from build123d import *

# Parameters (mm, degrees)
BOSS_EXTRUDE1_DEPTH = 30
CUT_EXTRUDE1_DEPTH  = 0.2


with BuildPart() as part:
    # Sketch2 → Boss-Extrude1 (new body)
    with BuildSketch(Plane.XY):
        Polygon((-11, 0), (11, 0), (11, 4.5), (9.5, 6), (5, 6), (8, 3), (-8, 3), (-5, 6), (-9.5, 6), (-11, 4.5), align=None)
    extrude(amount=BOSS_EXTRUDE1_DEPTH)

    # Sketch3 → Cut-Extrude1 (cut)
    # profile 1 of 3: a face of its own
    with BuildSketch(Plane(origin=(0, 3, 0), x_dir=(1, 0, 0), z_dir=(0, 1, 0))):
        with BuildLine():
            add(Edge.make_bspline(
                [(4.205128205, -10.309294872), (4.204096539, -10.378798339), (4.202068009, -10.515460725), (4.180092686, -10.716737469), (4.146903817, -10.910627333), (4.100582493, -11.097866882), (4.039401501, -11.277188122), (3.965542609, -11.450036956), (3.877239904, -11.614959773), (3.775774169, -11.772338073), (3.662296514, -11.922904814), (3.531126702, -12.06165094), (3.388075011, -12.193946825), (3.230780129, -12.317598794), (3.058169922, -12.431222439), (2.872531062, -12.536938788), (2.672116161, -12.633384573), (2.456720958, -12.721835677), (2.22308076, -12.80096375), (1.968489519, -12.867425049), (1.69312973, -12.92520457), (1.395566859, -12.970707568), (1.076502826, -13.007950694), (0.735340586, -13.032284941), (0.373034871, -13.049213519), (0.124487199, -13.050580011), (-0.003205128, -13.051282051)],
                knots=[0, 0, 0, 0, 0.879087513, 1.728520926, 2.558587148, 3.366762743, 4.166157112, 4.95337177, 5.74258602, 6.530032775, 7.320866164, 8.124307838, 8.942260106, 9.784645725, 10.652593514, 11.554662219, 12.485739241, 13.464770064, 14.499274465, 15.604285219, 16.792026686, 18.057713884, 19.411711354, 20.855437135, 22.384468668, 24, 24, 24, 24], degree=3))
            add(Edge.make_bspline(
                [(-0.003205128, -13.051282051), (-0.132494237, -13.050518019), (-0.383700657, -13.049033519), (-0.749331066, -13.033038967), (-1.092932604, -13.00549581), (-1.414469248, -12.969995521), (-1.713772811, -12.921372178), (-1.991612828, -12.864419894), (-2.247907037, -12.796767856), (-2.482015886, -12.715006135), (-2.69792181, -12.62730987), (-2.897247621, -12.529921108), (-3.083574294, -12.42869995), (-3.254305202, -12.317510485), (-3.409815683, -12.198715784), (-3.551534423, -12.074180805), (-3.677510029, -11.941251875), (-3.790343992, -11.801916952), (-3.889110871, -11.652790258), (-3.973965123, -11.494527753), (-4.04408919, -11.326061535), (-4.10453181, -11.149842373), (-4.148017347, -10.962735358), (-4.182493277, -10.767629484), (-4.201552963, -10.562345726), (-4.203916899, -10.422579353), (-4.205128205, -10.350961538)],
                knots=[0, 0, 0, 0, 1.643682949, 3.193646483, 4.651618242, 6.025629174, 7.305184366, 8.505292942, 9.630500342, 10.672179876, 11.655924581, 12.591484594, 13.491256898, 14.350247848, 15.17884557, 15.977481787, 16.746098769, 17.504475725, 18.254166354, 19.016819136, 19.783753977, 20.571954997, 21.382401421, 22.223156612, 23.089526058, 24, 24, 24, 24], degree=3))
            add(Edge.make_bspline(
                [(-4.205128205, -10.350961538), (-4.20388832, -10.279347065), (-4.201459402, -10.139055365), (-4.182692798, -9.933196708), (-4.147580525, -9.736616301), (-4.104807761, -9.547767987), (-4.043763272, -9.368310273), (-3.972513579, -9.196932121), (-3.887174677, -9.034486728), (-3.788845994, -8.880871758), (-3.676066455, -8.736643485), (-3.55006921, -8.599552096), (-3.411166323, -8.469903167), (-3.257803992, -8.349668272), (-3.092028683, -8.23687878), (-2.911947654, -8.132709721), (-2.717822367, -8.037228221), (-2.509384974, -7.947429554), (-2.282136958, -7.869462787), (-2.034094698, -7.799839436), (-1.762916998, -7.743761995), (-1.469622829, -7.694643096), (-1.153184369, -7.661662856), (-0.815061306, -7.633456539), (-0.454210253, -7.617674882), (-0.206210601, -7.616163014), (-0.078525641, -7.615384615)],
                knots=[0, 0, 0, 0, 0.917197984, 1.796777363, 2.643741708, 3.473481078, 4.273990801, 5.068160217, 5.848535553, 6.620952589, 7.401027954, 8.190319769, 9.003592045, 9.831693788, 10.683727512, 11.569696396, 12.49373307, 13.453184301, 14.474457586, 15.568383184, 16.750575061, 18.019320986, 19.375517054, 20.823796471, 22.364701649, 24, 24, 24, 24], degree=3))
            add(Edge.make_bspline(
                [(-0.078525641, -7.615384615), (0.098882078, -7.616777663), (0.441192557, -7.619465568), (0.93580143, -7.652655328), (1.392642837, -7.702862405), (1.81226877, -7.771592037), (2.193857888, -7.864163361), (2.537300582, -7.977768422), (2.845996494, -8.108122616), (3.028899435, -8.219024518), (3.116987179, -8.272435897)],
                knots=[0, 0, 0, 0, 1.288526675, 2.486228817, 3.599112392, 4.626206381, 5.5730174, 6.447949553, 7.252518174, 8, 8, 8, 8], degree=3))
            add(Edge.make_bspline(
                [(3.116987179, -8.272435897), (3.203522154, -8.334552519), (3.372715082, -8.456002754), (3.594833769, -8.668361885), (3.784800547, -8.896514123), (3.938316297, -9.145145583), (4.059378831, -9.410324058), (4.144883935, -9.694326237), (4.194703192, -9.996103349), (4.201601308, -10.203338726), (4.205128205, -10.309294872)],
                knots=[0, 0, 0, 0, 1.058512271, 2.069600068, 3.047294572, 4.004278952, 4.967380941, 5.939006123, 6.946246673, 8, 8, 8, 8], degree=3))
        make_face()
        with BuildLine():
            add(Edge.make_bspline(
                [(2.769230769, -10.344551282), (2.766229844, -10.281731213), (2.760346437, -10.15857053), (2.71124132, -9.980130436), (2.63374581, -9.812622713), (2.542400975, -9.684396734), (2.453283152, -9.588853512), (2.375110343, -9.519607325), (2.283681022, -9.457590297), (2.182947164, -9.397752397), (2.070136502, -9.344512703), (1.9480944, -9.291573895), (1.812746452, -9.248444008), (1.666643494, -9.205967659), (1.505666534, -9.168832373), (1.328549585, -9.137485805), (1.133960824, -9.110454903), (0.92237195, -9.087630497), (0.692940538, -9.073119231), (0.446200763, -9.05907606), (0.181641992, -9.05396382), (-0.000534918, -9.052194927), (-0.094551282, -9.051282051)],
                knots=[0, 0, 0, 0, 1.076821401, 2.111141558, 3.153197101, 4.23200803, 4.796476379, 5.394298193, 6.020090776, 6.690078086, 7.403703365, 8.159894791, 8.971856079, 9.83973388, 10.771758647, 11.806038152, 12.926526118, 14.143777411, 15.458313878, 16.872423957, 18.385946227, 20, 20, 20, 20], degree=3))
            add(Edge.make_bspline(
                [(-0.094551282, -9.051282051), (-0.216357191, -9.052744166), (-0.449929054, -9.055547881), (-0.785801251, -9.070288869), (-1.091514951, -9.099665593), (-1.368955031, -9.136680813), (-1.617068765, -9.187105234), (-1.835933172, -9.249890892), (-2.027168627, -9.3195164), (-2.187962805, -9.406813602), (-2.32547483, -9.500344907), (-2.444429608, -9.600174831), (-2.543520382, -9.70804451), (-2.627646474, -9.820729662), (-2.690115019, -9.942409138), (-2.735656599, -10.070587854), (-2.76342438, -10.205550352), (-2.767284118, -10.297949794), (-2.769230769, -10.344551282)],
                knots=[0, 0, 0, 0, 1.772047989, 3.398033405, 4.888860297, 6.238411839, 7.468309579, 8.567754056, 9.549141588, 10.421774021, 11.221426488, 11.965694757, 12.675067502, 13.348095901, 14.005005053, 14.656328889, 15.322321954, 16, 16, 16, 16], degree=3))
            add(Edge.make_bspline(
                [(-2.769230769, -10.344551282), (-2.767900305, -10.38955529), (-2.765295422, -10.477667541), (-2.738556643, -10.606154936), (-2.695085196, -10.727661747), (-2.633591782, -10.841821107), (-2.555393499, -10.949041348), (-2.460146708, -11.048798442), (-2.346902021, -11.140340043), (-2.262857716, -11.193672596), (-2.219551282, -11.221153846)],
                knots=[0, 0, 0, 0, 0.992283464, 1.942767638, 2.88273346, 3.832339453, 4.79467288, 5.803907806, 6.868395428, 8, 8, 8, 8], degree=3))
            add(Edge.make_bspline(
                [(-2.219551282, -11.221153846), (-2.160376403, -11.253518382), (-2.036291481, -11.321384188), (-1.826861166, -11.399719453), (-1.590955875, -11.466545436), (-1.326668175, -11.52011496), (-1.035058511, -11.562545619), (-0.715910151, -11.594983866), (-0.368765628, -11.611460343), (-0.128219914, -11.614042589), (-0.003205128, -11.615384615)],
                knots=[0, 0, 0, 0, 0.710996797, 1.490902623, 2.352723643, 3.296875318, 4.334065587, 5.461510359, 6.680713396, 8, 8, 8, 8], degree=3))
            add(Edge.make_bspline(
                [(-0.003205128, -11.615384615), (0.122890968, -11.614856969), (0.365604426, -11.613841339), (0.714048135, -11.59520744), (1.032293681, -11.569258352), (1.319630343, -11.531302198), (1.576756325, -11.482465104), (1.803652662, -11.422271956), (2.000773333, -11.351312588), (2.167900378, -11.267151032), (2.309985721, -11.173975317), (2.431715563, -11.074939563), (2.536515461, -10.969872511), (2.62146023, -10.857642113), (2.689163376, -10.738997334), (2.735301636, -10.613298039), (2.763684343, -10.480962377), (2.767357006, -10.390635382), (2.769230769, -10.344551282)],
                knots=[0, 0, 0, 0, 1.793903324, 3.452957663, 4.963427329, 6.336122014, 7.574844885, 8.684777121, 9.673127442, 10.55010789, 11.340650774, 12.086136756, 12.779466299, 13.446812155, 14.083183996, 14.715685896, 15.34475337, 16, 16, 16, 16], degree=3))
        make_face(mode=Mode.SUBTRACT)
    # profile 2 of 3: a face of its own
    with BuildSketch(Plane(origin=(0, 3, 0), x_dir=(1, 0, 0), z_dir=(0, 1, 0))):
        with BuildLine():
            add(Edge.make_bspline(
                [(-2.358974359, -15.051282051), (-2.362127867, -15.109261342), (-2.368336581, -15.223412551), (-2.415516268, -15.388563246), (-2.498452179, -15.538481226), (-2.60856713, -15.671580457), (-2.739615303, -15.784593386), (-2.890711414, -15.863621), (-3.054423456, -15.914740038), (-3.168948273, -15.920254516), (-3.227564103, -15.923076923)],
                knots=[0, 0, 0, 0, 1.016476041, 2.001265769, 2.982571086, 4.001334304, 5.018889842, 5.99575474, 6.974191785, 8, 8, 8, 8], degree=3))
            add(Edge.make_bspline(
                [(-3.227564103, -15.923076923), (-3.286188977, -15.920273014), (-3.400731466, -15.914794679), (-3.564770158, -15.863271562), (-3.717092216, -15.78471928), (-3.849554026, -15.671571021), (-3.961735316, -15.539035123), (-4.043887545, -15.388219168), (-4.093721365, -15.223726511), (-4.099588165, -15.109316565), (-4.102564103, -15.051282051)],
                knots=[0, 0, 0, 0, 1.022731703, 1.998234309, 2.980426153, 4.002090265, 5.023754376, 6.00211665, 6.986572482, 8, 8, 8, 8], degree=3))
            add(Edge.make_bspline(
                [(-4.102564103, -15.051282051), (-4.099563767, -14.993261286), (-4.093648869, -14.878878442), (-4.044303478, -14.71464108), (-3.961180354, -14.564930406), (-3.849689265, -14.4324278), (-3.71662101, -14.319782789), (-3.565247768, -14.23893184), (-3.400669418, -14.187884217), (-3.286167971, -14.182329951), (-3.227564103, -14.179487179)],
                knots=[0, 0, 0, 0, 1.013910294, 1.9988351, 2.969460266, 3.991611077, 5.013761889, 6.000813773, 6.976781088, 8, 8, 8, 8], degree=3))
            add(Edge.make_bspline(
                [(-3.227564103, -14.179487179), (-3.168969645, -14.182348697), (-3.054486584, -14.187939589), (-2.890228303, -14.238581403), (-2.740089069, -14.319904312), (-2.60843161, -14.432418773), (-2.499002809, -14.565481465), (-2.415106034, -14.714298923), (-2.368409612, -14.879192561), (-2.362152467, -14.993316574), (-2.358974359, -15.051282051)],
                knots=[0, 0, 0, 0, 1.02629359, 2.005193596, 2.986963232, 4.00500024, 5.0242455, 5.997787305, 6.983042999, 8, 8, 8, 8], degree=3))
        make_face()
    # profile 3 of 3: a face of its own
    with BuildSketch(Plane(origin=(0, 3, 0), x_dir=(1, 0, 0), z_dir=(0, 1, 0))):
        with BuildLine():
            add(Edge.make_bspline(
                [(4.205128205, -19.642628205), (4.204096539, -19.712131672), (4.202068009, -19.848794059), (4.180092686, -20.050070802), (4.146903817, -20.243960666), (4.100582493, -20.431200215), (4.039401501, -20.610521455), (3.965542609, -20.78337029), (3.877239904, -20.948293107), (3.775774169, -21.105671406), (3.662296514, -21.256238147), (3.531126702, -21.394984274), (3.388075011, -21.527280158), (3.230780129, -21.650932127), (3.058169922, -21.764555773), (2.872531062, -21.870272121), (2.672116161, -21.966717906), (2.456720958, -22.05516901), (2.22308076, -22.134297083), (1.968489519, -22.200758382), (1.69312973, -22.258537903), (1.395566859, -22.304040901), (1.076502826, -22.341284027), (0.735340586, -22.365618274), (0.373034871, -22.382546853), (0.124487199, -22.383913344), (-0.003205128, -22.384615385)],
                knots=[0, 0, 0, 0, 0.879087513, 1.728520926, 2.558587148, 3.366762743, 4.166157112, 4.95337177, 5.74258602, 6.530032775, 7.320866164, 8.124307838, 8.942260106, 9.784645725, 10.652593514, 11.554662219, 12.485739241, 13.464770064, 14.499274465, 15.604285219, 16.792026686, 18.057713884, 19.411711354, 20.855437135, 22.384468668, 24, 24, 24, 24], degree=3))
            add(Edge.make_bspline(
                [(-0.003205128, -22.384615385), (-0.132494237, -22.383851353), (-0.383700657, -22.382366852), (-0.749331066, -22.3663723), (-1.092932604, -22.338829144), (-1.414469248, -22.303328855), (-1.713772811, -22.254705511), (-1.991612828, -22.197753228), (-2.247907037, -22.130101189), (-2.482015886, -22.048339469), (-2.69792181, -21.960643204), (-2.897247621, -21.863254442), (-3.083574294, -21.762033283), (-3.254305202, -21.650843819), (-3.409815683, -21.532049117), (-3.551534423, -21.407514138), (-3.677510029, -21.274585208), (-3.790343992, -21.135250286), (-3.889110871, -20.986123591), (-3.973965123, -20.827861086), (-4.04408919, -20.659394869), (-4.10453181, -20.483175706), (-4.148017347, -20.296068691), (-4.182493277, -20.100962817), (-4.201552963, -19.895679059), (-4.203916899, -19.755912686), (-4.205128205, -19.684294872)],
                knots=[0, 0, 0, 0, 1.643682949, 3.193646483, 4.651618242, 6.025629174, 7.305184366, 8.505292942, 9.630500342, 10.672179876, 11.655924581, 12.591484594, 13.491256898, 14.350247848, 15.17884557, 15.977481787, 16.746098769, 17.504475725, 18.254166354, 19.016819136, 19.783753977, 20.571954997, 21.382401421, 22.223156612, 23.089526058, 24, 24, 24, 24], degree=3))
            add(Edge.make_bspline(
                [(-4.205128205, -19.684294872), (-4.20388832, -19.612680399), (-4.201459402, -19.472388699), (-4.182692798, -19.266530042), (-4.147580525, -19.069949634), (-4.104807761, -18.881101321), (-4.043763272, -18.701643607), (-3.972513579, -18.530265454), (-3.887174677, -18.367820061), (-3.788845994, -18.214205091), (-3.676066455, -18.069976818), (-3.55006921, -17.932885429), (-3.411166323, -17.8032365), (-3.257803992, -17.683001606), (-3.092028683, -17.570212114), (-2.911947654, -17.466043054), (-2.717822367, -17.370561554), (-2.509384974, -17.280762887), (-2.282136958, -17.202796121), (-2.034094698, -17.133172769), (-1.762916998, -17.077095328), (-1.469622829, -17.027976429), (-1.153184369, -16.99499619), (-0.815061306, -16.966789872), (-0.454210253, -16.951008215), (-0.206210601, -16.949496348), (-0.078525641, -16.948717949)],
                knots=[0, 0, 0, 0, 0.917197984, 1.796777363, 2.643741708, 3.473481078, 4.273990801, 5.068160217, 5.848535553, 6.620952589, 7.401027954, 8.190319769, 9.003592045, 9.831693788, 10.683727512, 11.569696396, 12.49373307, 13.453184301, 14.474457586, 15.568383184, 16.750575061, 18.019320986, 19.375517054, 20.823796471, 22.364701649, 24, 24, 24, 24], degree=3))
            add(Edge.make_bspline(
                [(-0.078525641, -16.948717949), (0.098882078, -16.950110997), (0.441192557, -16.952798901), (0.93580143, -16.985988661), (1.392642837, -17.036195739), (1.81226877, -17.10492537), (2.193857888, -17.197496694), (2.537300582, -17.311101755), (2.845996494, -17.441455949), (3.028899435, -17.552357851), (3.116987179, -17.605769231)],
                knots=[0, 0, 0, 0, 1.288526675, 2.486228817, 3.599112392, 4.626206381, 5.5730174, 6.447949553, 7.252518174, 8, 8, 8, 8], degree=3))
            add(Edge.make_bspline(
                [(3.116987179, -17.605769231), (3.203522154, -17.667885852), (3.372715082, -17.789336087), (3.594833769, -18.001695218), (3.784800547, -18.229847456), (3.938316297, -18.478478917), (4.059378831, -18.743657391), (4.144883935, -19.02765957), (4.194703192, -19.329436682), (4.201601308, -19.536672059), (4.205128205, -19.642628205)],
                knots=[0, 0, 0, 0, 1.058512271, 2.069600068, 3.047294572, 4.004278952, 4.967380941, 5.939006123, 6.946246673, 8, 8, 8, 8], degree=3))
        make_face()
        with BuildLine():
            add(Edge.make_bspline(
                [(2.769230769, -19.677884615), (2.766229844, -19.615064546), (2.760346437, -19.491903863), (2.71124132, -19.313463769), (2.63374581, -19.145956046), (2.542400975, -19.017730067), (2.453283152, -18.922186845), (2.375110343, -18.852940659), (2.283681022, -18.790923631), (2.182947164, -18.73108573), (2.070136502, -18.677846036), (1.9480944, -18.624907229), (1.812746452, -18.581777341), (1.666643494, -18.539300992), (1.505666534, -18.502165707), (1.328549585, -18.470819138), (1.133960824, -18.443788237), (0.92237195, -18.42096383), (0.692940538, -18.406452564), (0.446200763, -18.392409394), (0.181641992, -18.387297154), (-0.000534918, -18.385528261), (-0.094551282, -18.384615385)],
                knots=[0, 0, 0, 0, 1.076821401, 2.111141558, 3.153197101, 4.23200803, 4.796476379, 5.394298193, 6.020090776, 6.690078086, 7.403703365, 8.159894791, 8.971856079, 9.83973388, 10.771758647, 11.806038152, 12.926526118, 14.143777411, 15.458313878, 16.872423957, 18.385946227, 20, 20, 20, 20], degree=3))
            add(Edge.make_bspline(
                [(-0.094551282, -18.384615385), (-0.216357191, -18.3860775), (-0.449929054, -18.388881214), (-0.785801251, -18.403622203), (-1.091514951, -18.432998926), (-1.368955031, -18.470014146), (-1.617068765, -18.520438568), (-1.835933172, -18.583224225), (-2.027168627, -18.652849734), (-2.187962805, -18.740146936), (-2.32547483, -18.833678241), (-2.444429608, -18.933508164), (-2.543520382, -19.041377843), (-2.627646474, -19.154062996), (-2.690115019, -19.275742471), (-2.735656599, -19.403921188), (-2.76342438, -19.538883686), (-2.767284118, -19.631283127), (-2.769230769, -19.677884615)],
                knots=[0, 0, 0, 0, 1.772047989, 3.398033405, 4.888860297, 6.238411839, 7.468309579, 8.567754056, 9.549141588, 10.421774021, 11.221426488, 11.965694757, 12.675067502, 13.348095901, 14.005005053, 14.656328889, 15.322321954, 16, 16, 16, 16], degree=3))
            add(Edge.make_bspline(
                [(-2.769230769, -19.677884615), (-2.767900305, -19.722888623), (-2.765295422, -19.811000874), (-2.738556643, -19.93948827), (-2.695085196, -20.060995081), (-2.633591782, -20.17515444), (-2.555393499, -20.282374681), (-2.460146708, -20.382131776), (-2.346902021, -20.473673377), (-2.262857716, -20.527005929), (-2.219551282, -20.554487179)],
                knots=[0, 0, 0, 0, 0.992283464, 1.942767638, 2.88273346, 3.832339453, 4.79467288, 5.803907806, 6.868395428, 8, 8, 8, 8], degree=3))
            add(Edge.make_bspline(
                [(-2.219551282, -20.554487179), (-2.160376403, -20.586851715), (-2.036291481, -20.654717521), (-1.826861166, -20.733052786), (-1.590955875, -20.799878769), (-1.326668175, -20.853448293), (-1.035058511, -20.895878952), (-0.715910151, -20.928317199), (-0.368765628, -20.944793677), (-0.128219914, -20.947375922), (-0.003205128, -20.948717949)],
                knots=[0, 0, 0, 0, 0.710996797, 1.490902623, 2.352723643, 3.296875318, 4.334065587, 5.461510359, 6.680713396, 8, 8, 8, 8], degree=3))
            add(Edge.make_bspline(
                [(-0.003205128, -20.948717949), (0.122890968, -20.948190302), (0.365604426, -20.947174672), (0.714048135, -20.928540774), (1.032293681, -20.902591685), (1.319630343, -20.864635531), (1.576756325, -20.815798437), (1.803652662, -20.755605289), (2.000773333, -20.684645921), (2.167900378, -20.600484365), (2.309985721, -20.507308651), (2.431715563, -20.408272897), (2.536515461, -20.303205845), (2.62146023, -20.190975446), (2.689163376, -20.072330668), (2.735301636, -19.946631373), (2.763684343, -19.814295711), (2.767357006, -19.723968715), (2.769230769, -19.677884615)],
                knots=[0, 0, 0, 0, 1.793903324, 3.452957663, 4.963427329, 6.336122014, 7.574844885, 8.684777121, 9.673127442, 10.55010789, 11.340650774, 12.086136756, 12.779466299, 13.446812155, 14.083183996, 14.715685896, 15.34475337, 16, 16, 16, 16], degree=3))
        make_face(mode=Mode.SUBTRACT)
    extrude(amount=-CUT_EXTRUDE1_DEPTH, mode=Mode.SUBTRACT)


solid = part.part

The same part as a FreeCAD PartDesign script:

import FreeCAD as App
import Part
import Sketcher


def add_polygon(sketch, points):
    """Adds a closed chain of lines whose ends are joined by coincident constraints."""
    first, n = sketch.GeometryCount, len(points)
    for a, b in zip(points, points[1:] + points[:1]):
        sketch.addGeometry(Part.LineSegment(App.Vector(*a, 0), App.Vector(*b, 0)), False)
    for i in range(n):
        sketch.addConstraint(Sketcher.Constraint("Coincident", first + i, 2, first + (i + 1) % n, 1))

doc = App.newDocument("Part")
body = doc.addObject("PartDesign::Body", "Body")

# Sketch on XY plane
sketch1 = doc.addObject("Sketcher::SketchObject", "Sketch")
body.addObject(sketch1)
sketch1.AttachmentSupport = (doc.XY_Plane, [""])
sketch1.MapMode = "FlatFace"
add_polygon(sketch1, [(-11, 0), (11, 0), (11, 4.5), (9.5, 6), (5, 6), (8, 3), (-8, 3), (-5, 6), (-9.5, 6), (-11, 4.5)])  # lines 0-9
sketch1.addConstraint(Sketcher.Constraint("Horizontal", 0))
sketch1.addConstraint(Sketcher.Constraint("Vertical", 1))
sketch1.addConstraint(Sketcher.Constraint("Horizontal", 3))
sketch1.addConstraint(Sketcher.Constraint("Horizontal", 5))
sketch1.addConstraint(Sketcher.Constraint("Horizontal", 7))
sketch1.addConstraint(Sketcher.Constraint("Vertical", 9))
sketch1.addConstraint(Sketcher.Constraint("Symmetric", 0, 2, 9, 2, -1, 1))
sketch1.addConstraint(Sketcher.Constraint("Symmetric", 3, 2, 6, 2, -2))
sketch1.addConstraint(Sketcher.Constraint("Parallel", 2, 4))
sketch1.addConstraint(Sketcher.Constraint("Perpendicular", 4, 6))
sketch1.addConstraint(Sketcher.Constraint("Parallel", 6, 8))
sketch1.addConstraint(Sketcher.Constraint("Horizontal", 1, 2, 8, 2))
sketch1.addConstraint(Sketcher.Constraint("Equal", 3, 7))
sketch1.addConstraint(Sketcher.Constraint("Equal", 7, 1))
sketch1.addConstraint(Sketcher.Constraint("DistanceX", 0, 1, 0, 2, 22.0))
sketch1.addConstraint(Sketcher.Constraint("DistanceX", 5, 2, 5, 1, 16.0))
sketch1.addConstraint(Sketcher.Constraint("DistanceX", 3, 2, 3, 1, 4.5))
sketch1.addConstraint(Sketcher.Constraint("DistanceY", -1, 1, 2, 2, 6.0))
pad1 = doc.addObject("PartDesign::Pad", "Pad")
body.addObject(pad1)
pad1.Profile = sketch1
pad1.Length = 30

# Sketch on XZ plane
sketch2 = doc.addObject("Sketcher::SketchObject", "Sketch001")
body.addObject(sketch2)
sketch2.AttachmentSupport = (doc.XZ_Plane, [""])
sketch2.MapMode = "FlatFace"
sketch2.AttachmentOffset = App.Placement(App.Vector(0, 0, -3), App.Rotation())
sketch2.addGeometry(Part.BSplineCurve([App.Vector(4.205128, 10.309295, 0), App.Vector(4.204097, 10.378798, 0), App.Vector(4.202068, 10.515461, 0), App.Vector(4.180093, 10.716737, 0), App.Vector(4.146904, 10.910627, 0), App.Vector(4.100582, 11.097867, 0), App.Vector(4.039402, 11.277188, 0), App.Vector(3.965543, 11.450037, 0), App.Vector(3.87724, 11.61496, 0), App.Vector(3.775774, 11.772338, 0), App.Vector(3.662297, 11.922905, 0), App.Vector(3.531127, 12.061651, 0), App.Vector(3.388075, 12.193947, 0), App.Vector(3.23078, 12.317599, 0), App.Vector(3.05817, 12.431222, 0), App.Vector(2.872531, 12.536939, 0), App.Vector(2.672116, 12.633385, 0), App.Vector(2.456721, 12.721836, 0), App.Vector(2.223081, 12.800964, 0), App.Vector(1.96849, 12.867425, 0), App.Vector(1.69313, 12.925205, 0), App.Vector(1.395567, 12.970708, 0), App.Vector(1.076503, 13.007951, 0), App.Vector(0.735341, 13.032285, 0), App.Vector(0.373035, 13.049214, 0), App.Vector(0.124487, 13.05058, 0), App.Vector(-0.003205, 13.051282, 0)], [4, 1, 1, 1, 1, 1, 1, 1, 1, 1, 1, 1, 1, 1, 1, 1, 1, 1, 1, 1, 1, 1, 1, 1, 4], [0, 0.879087513, 1.728520926, 2.558587148, 3.366762743, 4.166157112, 4.95337177, 5.74258602, 6.530032775, 7.320866164, 8.124307838, 8.942260106, 9.784645725, 10.652593514, 11.554662219, 12.485739241, 13.464770064, 14.499274465, 15.604285219, 16.792026686, 18.057713884, 19.411711354, 20.855437135, 22.384468668, 24], False, 3, [1, 1, 1, 1, 1, 1, 1, 1, 1, 1, 1, 1, 1, 1, 1, 1, 1, 1, 1, 1, 1, 1, 1, 1, 1, 1, 1], False), False)
sketch2.addGeometry(Part.BSplineCurve([App.Vector(3.116987, 8.272436, 0), App.Vector(3.203522, 8.334553, 0), App.Vector(3.372715, 8.456003, 0), App.Vector(3.594834, 8.668362, 0), App.Vector(3.784801, 8.896514, 0), App.Vector(3.938316, 9.145146, 0), App.Vector(4.059379, 9.410324, 0), App.Vector(4.144884, 9.694326, 0), App.Vector(4.194703, 9.996103, 0), App.Vector(4.201601, 10.203339, 0), App.Vector(4.205128, 10.309295, 0)], [4, 1, 1, 1, 1, 1, 1, 1, 4], [0, 1.058512271, 2.069600068, 3.047294572, 4.004278952, 4.967380941, 5.939006123, 6.946246673, 8], False, 3, [1, 1, 1, 1, 1, 1, 1, 1, 1, 1, 1], False), False)
sketch2.addGeometry(Part.BSplineCurve([App.Vector(-0.078526, 7.615385, 0), App.Vector(0.098882, 7.616778, 0), App.Vector(0.441193, 7.619466, 0), App.Vector(0.935801, 7.652655, 0), App.Vector(1.392643, 7.702862, 0), App.Vector(1.812269, 7.771592, 0), App.Vector(2.193858, 7.864163, 0), App.Vector(2.537301, 7.977768, 0), App.Vector(2.845996, 8.108123, 0), App.Vector(3.028899, 8.219025, 0), App.Vector(3.116987, 8.272436, 0)], [4, 1, 1, 1, 1, 1, 1, 1, 4], [0, 1.288526675, 2.486228817, 3.599112392, 4.626206381, 5.5730174, 6.447949553, 7.252518174, 8], False, 3, [1, 1, 1, 1, 1, 1, 1, 1, 1, 1, 1], False), False)
sketch2.addGeometry(Part.BSplineCurve([App.Vector(-4.205128, 10.350962, 0), App.Vector(-4.203888, 10.279347, 0), App.Vector(-4.201459, 10.139055, 0), App.Vector(-4.182693, 9.933197, 0), App.Vector(-4.147581, 9.736616, 0), App.Vector(-4.104808, 9.547768, 0), App.Vector(-4.043763, 9.36831, 0), App.Vector(-3.972514, 9.196932, 0), App.Vector(-3.887175, 9.034487, 0), App.Vector(-3.788846, 8.880872, 0), App.Vector(-3.676066, 8.736643, 0), App.Vector(-3.550069, 8.599552, 0), App.Vector(-3.411166, 8.469903, 0), App.Vector(-3.257804, 8.349668, 0), App.Vector(-3.092029, 8.236879, 0), App.Vector(-2.911948, 8.13271, 0), App.Vector(-2.717822, 8.037228, 0), App.Vector(-2.509385, 7.94743, 0), App.Vector(-2.282137, 7.869463, 0), App.Vector(-2.034095, 7.799839, 0), App.Vector(-1.762917, 7.743762, 0), App.Vector(-1.469623, 7.694643, 0), App.Vector(-1.153184, 7.661663, 0), App.Vector(-0.815061, 7.633457, 0), App.Vector(-0.45421, 7.617675, 0), App.Vector(-0.206211, 7.616163, 0), App.Vector(-0.078526, 7.615385, 0)], [4, 1, 1, 1, 1, 1, 1, 1, 1, 1, 1, 1, 1, 1, 1, 1, 1, 1, 1, 1, 1, 1, 1, 1, 4], [0, 0.917197984, 1.796777363, 2.643741708, 3.473481078, 4.273990801, 5.068160217, 5.848535553, 6.620952589, 7.401027954, 8.190319769, 9.003592045, 9.831693788, 10.683727512, 11.569696396, 12.49373307, 13.453184301, 14.474457586, 15.568383184, 16.750575061, 18.019320986, 19.375517054, 20.823796471, 22.364701649, 24], False, 3, [1, 1, 1, 1, 1, 1, 1, 1, 1, 1, 1, 1, 1, 1, 1, 1, 1, 1, 1, 1, 1, 1, 1, 1, 1, 1, 1], False), False)
sketch2.addGeometry(Part.BSplineCurve([App.Vector(-0.003205, 13.051282, 0), App.Vector(-0.132494, 13.050518, 0), App.Vector(-0.383701, 13.049034, 0), App.Vector(-0.749331, 13.033039, 0), App.Vector(-1.092933, 13.005496, 0), App.Vector(-1.414469, 12.969996, 0), App.Vector(-1.713773, 12.921372, 0), App.Vector(-1.991613, 12.86442, 0), App.Vector(-2.247907, 12.796768, 0), App.Vector(-2.482016, 12.715006, 0), App.Vector(-2.697922, 12.62731, 0), App.Vector(-2.897248, 12.529921, 0), App.Vector(-3.083574, 12.4287, 0), App.Vector(-3.254305, 12.31751, 0), App.Vector(-3.409816, 12.198716, 0), App.Vector(-3.551534, 12.074181, 0), App.Vector(-3.67751, 11.941252, 0), App.Vector(-3.790344, 11.801917, 0), App.Vector(-3.889111, 11.65279, 0), App.Vector(-3.973965, 11.494528, 0), App.Vector(-4.044089, 11.326062, 0), App.Vector(-4.104532, 11.149842, 0), App.Vector(-4.148017, 10.962735, 0), App.Vector(-4.182493, 10.767629, 0), App.Vector(-4.201553, 10.562346, 0), App.Vector(-4.203917, 10.422579, 0), App.Vector(-4.205128, 10.350962, 0)], [4, 1, 1, 1, 1, 1, 1, 1, 1, 1, 1, 1, 1, 1, 1, 1, 1, 1, 1, 1, 1, 1, 1, 1, 4], [0, 1.643682949, 3.193646483, 4.651618242, 6.025629174, 7.305184366, 8.505292942, 9.630500342, 10.672179876, 11.655924581, 12.591484594, 13.491256898, 14.350247848, 15.17884557, 15.977481787, 16.746098769, 17.504475725, 18.254166354, 19.016819136, 19.783753977, 20.571954997, 21.382401421, 22.223156612, 23.089526058, 24], False, 3, [1, 1, 1, 1, 1, 1, 1, 1, 1, 1, 1, 1, 1, 1, 1, 1, 1, 1, 1, 1, 1, 1, 1, 1, 1, 1, 1], False), False)
sketch2.addGeometry(Part.BSplineCurve([App.Vector(-0.003205, 11.615385, 0), App.Vector(0.122891, 11.614857, 0), App.Vector(0.365604, 11.613841, 0), App.Vector(0.714048, 11.595207, 0), App.Vector(1.032294, 11.569258, 0), App.Vector(1.31963, 11.531302, 0), App.Vector(1.576756, 11.482465, 0), App.Vector(1.803653, 11.422272, 0), App.Vector(2.000773, 11.351313, 0), App.Vector(2.1679, 11.267151, 0), App.Vector(2.309986, 11.173975, 0), App.Vector(2.431716, 11.07494, 0), App.Vector(2.536515, 10.969873, 0), App.Vector(2.62146, 10.857642, 0), App.Vector(2.689163, 10.738997, 0), App.Vector(2.735302, 10.613298, 0), App.Vector(2.763684, 10.480962, 0), App.Vector(2.767357, 10.390635, 0), App.Vector(2.769231, 10.344551, 0)], [4, 1, 1, 1, 1, 1, 1, 1, 1, 1, 1, 1, 1, 1, 1, 1, 4], [0, 1.793903324, 3.452957663, 4.963427329, 6.336122014, 7.574844885, 8.684777121, 9.673127442, 10.55010789, 11.340650774, 12.086136756, 12.779466299, 13.446812155, 14.083183996, 14.715685896, 15.34475337, 16], False, 3, [1, 1, 1, 1, 1, 1, 1, 1, 1, 1, 1, 1, 1, 1, 1, 1, 1, 1, 1], False), False)
sketch2.addGeometry(Part.BSplineCurve([App.Vector(-2.219551, 11.221154, 0), App.Vector(-2.160376, 11.253518, 0), App.Vector(-2.036291, 11.321384, 0), App.Vector(-1.826861, 11.399719, 0), App.Vector(-1.590956, 11.466545, 0), App.Vector(-1.326668, 11.520115, 0), App.Vector(-1.035059, 11.562546, 0), App.Vector(-0.71591, 11.594984, 0), App.Vector(-0.368766, 11.61146, 0), App.Vector(-0.12822, 11.614043, 0), App.Vector(-0.003205, 11.615385, 0)], [4, 1, 1, 1, 1, 1, 1, 1, 4], [0, 0.710996797, 1.490902623, 2.352723643, 3.296875318, 4.334065587, 5.461510359, 6.680713396, 8], False, 3, [1, 1, 1, 1, 1, 1, 1, 1, 1, 1, 1], False), False)
sketch2.addGeometry(Part.BSplineCurve([App.Vector(-2.769231, 10.344551, 0), App.Vector(-2.7679, 10.389555, 0), App.Vector(-2.765295, 10.477668, 0), App.Vector(-2.738557, 10.606155, 0), App.Vector(-2.695085, 10.727662, 0), App.Vector(-2.633592, 10.841821, 0), App.Vector(-2.555393, 10.949041, 0), App.Vector(-2.460147, 11.048798, 0), App.Vector(-2.346902, 11.14034, 0), App.Vector(-2.262858, 11.193673, 0), App.Vector(-2.219551, 11.221154, 0)], [4, 1, 1, 1, 1, 1, 1, 1, 4], [0, 0.992283464, 1.942767638, 2.88273346, 3.832339453, 4.79467288, 5.803907806, 6.868395428, 8], False, 3, [1, 1, 1, 1, 1, 1, 1, 1, 1, 1, 1], False), False)
sketch2.addGeometry(Part.BSplineCurve([App.Vector(-0.094551, 9.051282, 0), App.Vector(-0.216357, 9.052744, 0), App.Vector(-0.449929, 9.055548, 0), App.Vector(-0.785801, 9.070289, 0), App.Vector(-1.091515, 9.099666, 0), App.Vector(-1.368955, 9.136681, 0), App.Vector(-1.617069, 9.187105, 0), App.Vector(-1.835933, 9.249891, 0), App.Vector(-2.027169, 9.319516, 0), App.Vector(-2.187963, 9.406814, 0), App.Vector(-2.325475, 9.500345, 0), App.Vector(-2.44443, 9.600175, 0), App.Vector(-2.54352, 9.708045, 0), App.Vector(-2.627646, 9.82073, 0), App.Vector(-2.690115, 9.942409, 0), App.Vector(-2.735657, 10.070588, 0), App.Vector(-2.763424, 10.20555, 0), App.Vector(-2.767284, 10.29795, 0), App.Vector(-2.769231, 10.344551, 0)], [4, 1, 1, 1, 1, 1, 1, 1, 1, 1, 1, 1, 1, 1, 1, 1, 4], [0, 1.772047989, 3.398033405, 4.888860297, 6.238411839, 7.468309579, 8.567754056, 9.549141588, 10.421774021, 11.221426488, 11.965694757, 12.675067502, 13.348095901, 14.005005053, 14.656328889, 15.322321954, 16], False, 3, [1, 1, 1, 1, 1, 1, 1, 1, 1, 1, 1, 1, 1, 1, 1, 1, 1, 1, 1], False), False)
sketch2.addGeometry(Part.BSplineCurve([App.Vector(2.769231, 10.344551, 0), App.Vector(2.76623, 10.281731, 0), App.Vector(2.760346, 10.158571, 0), App.Vector(2.711241, 9.98013, 0), App.Vector(2.633746, 9.812623, 0), App.Vector(2.542401, 9.684397, 0), App.Vector(2.453283, 9.588854, 0), App.Vector(2.37511, 9.519607, 0), App.Vector(2.283681, 9.45759, 0), App.Vector(2.182947, 9.397752, 0), App.Vector(2.070137, 9.344513, 0), App.Vector(1.948094, 9.291574, 0), App.Vector(1.812746, 9.248444, 0), App.Vector(1.666643, 9.205968, 0), App.Vector(1.505667, 9.168832, 0), App.Vector(1.32855, 9.137486, 0), App.Vector(1.133961, 9.110455, 0), App.Vector(0.922372, 9.08763, 0), App.Vector(0.692941, 9.073119, 0), App.Vector(0.446201, 9.059076, 0), App.Vector(0.181642, 9.053964, 0), App.Vector(-0.000535, 9.052195, 0), App.Vector(-0.094551, 9.051282, 0)], [4, 1, 1, 1, 1, 1, 1, 1, 1, 1, 1, 1, 1, 1, 1, 1, 1, 1, 1, 1, 4], [0, 1.076821401, 2.111141558, 3.153197101, 4.23200803, 4.796476379, 5.394298193, 6.020090776, 6.690078086, 7.403703365, 8.159894791, 8.971856079, 9.83973388, 10.771758647, 11.806038152, 12.926526118, 14.143777411, 15.458313878, 16.872423957, 18.385946227, 20], False, 3, [1, 1, 1, 1, 1, 1, 1, 1, 1, 1, 1, 1, 1, 1, 1, 1, 1, 1, 1, 1, 1, 1, 1], False), False)
sketch2.addGeometry(Part.BSplineCurve([App.Vector(-2.358974, 15.051282, 0), App.Vector(-2.362128, 15.109261, 0), App.Vector(-2.368337, 15.223413, 0), App.Vector(-2.415516, 15.388563, 0), App.Vector(-2.498452, 15.538481, 0), App.Vector(-2.608567, 15.67158, 0), App.Vector(-2.739615, 15.784593, 0), App.Vector(-2.890711, 15.863621, 0), App.Vector(-3.054423, 15.91474, 0), App.Vector(-3.168948, 15.920255, 0), App.Vector(-3.227564, 15.923077, 0)], [4, 1, 1, 1, 1, 1, 1, 1, 4], [0, 1.016476041, 2.001265769, 2.982571086, 4.001334304, 5.018889842, 5.99575474, 6.974191785, 8], False, 3, [1, 1, 1, 1, 1, 1, 1, 1, 1, 1, 1], False), False)
sketch2.addGeometry(Part.BSplineCurve([App.Vector(-3.227564, 14.179487, 0), App.Vector(-3.16897, 14.182349, 0), App.Vector(-3.054487, 14.18794, 0), App.Vector(-2.890228, 14.238581, 0), App.Vector(-2.740089, 14.319904, 0), App.Vector(-2.608432, 14.432419, 0), App.Vector(-2.499003, 14.565481, 0), App.Vector(-2.415106, 14.714299, 0), App.Vector(-2.36841, 14.879193, 0), App.Vector(-2.362152, 14.993317, 0), App.Vector(-2.358974, 15.051282, 0)], [4, 1, 1, 1, 1, 1, 1, 1, 4], [0, 1.02629359, 2.005193596, 2.986963232, 4.00500024, 5.0242455, 5.997787305, 6.983042999, 8], False, 3, [1, 1, 1, 1, 1, 1, 1, 1, 1, 1, 1], False), False)
sketch2.addGeometry(Part.BSplineCurve([App.Vector(-4.102564, 15.051282, 0), App.Vector(-4.099564, 14.993261, 0), App.Vector(-4.093649, 14.878878, 0), App.Vector(-4.044303, 14.714641, 0), App.Vector(-3.96118, 14.56493, 0), App.Vector(-3.849689, 14.432428, 0), App.Vector(-3.716621, 14.319783, 0), App.Vector(-3.565248, 14.238932, 0), App.Vector(-3.400669, 14.187884, 0), App.Vector(-3.286168, 14.18233, 0), App.Vector(-3.227564, 14.179487, 0)], [4, 1, 1, 1, 1, 1, 1, 1, 4], [0, 1.013910294, 1.9988351, 2.969460266, 3.991611077, 5.013761889, 6.000813773, 6.976781088, 8], False, 3, [1, 1, 1, 1, 1, 1, 1, 1, 1, 1, 1], False), False)
sketch2.addGeometry(Part.BSplineCurve([App.Vector(-3.227564, 15.923077, 0), App.Vector(-3.286189, 15.920273, 0), App.Vector(-3.400731, 15.914795, 0), App.Vector(-3.56477, 15.863272, 0), App.Vector(-3.717092, 15.784719, 0), App.Vector(-3.849554, 15.671571, 0), App.Vector(-3.961735, 15.539035, 0), App.Vector(-4.043888, 15.388219, 0), App.Vector(-4.093721, 15.223727, 0), App.Vector(-4.099588, 15.109317, 0), App.Vector(-4.102564, 15.051282, 0)], [4, 1, 1, 1, 1, 1, 1, 1, 4], [0, 1.022731703, 1.998234309, 2.980426153, 4.002090265, 5.023754376, 6.00211665, 6.986572482, 8], False, 3, [1, 1, 1, 1, 1, 1, 1, 1, 1, 1, 1], False), False)
sketch2.addGeometry(Part.BSplineCurve([App.Vector(4.205128, 19.642628, 0), App.Vector(4.204097, 19.712132, 0), App.Vector(4.202068, 19.848794, 0), App.Vector(4.180093, 20.050071, 0), App.Vector(4.146904, 20.243961, 0), App.Vector(4.100582, 20.4312, 0), App.Vector(4.039402, 20.610521, 0), App.Vector(3.965543, 20.78337, 0), App.Vector(3.87724, 20.948293, 0), App.Vector(3.775774, 21.105671, 0), App.Vector(3.662297, 21.256238, 0), App.Vector(3.531127, 21.394984, 0), App.Vector(3.388075, 21.52728, 0), App.Vector(3.23078, 21.650932, 0), App.Vector(3.05817, 21.764556, 0), App.Vector(2.872531, 21.870272, 0), App.Vector(2.672116, 21.966718, 0), App.Vector(2.456721, 22.055169, 0), App.Vector(2.223081, 22.134297, 0), App.Vector(1.96849, 22.200758, 0), App.Vector(1.69313, 22.258538, 0), App.Vector(1.395567, 22.304041, 0), App.Vector(1.076503, 22.341284, 0), App.Vector(0.735341, 22.365618, 0), App.Vector(0.373035, 22.382547, 0), App.Vector(0.124487, 22.383913, 0), App.Vector(-0.003205, 22.384615, 0)], [4, 1, 1, 1, 1, 1, 1, 1, 1, 1, 1, 1, 1, 1, 1, 1, 1, 1, 1, 1, 1, 1, 1, 1, 4], [0, 0.879087513, 1.728520926, 2.558587148, 3.366762743, 4.166157112, 4.95337177, 5.74258602, 6.530032775, 7.320866164, 8.124307838, 8.942260106, 9.784645725, 10.652593514, 11.554662219, 12.485739241, 13.464770064, 14.499274465, 15.604285219, 16.792026686, 18.057713884, 19.411711354, 20.855437135, 22.384468668, 24], False, 3, [1, 1, 1, 1, 1, 1, 1, 1, 1, 1, 1, 1, 1, 1, 1, 1, 1, 1, 1, 1, 1, 1, 1, 1, 1, 1, 1], False), False)
sketch2.addGeometry(Part.BSplineCurve([App.Vector(3.116987, 17.605769, 0), App.Vector(3.203522, 17.667886, 0), App.Vector(3.372715, 17.789336, 0), App.Vector(3.594834, 18.001695, 0), App.Vector(3.784801, 18.229847, 0), App.Vector(3.938316, 18.478479, 0), App.Vector(4.059379, 18.743657, 0), App.Vector(4.144884, 19.02766, 0), App.Vector(4.194703, 19.329437, 0), App.Vector(4.201601, 19.536672, 0), App.Vector(4.205128, 19.642628, 0)], [4, 1, 1, 1, 1, 1, 1, 1, 4], [0, 1.058512271, 2.069600068, 3.047294572, 4.004278952, 4.967380941, 5.939006123, 6.946246673, 8], False, 3, [1, 1, 1, 1, 1, 1, 1, 1, 1, 1, 1], False), False)
sketch2.addGeometry(Part.BSplineCurve([App.Vector(-0.078526, 16.948718, 0), App.Vector(0.098882, 16.950111, 0), App.Vector(0.441193, 16.952799, 0), App.Vector(0.935801, 16.985989, 0), App.Vector(1.392643, 17.036196, 0), App.Vector(1.812269, 17.104925, 0), App.Vector(2.193858, 17.197497, 0), App.Vector(2.537301, 17.311102, 0), App.Vector(2.845996, 17.441456, 0), App.Vector(3.028899, 17.552358, 0), App.Vector(3.116987, 17.605769, 0)], [4, 1, 1, 1, 1, 1, 1, 1, 4], [0, 1.288526675, 2.486228817, 3.599112392, 4.626206381, 5.5730174, 6.447949553, 7.252518174, 8], False, 3, [1, 1, 1, 1, 1, 1, 1, 1, 1, 1, 1], False), False)
sketch2.addGeometry(Part.BSplineCurve([App.Vector(-4.205128, 19.684295, 0), App.Vector(-4.203888, 19.61268, 0), App.Vector(-4.201459, 19.472389, 0), App.Vector(-4.182693, 19.26653, 0), App.Vector(-4.147581, 19.06995, 0), App.Vector(-4.104808, 18.881101, 0), App.Vector(-4.043763, 18.701644, 0), App.Vector(-3.972514, 18.530265, 0), App.Vector(-3.887175, 18.36782, 0), App.Vector(-3.788846, 18.214205, 0), App.Vector(-3.676066, 18.069977, 0), App.Vector(-3.550069, 17.932885, 0), App.Vector(-3.411166, 17.803237, 0), App.Vector(-3.257804, 17.683002, 0), App.Vector(-3.092029, 17.570212, 0), App.Vector(-2.911948, 17.466043, 0), App.Vector(-2.717822, 17.370562, 0), App.Vector(-2.509385, 17.280763, 0), App.Vector(-2.282137, 17.202796, 0), App.Vector(-2.034095, 17.133173, 0), App.Vector(-1.762917, 17.077095, 0), App.Vector(-1.469623, 17.027976, 0), App.Vector(-1.153184, 16.994996, 0), App.Vector(-0.815061, 16.96679, 0), App.Vector(-0.45421, 16.951008, 0), App.Vector(-0.206211, 16.949496, 0), App.Vector(-0.078526, 16.948718, 0)], [4, 1, 1, 1, 1, 1, 1, 1, 1, 1, 1, 1, 1, 1, 1, 1, 1, 1, 1, 1, 1, 1, 1, 1, 4], [0, 0.917197984, 1.796777363, 2.643741708, 3.473481078, 4.273990801, 5.068160217, 5.848535553, 6.620952589, 7.401027954, 8.190319769, 9.003592045, 9.831693788, 10.683727512, 11.569696396, 12.49373307, 13.453184301, 14.474457586, 15.568383184, 16.750575061, 18.019320986, 19.375517054, 20.823796471, 22.364701649, 24], False, 3, [1, 1, 1, 1, 1, 1, 1, 1, 1, 1, 1, 1, 1, 1, 1, 1, 1, 1, 1, 1, 1, 1, 1, 1, 1, 1, 1], False), False)
sketch2.addGeometry(Part.BSplineCurve([App.Vector(-0.003205, 22.384615, 0), App.Vector(-0.132494, 22.383851, 0), App.Vector(-0.383701, 22.382367, 0), App.Vector(-0.749331, 22.366372, 0), App.Vector(-1.092933, 22.338829, 0), App.Vector(-1.414469, 22.303329, 0), App.Vector(-1.713773, 22.254706, 0), App.Vector(-1.991613, 22.197753, 0), App.Vector(-2.247907, 22.130101, 0), App.Vector(-2.482016, 22.048339, 0), App.Vector(-2.697922, 21.960643, 0), App.Vector(-2.897248, 21.863254, 0), App.Vector(-3.083574, 21.762033, 0), App.Vector(-3.254305, 21.650844, 0), App.Vector(-3.409816, 21.532049, 0), App.Vector(-3.551534, 21.407514, 0), App.Vector(-3.67751, 21.274585, 0), App.Vector(-3.790344, 21.13525, 0), App.Vector(-3.889111, 20.986124, 0), App.Vector(-3.973965, 20.827861, 0), App.Vector(-4.044089, 20.659395, 0), App.Vector(-4.104532, 20.483176, 0), App.Vector(-4.148017, 20.296069, 0), App.Vector(-4.182493, 20.100963, 0), App.Vector(-4.201553, 19.895679, 0), App.Vector(-4.203917, 19.755913, 0), App.Vector(-4.205128, 19.684295, 0)], [4, 1, 1, 1, 1, 1, 1, 1, 1, 1, 1, 1, 1, 1, 1, 1, 1, 1, 1, 1, 1, 1, 1, 1, 4], [0, 1.643682949, 3.193646483, 4.651618242, 6.025629174, 7.305184366, 8.505292942, 9.630500342, 10.672179876, 11.655924581, 12.591484594, 13.491256898, 14.350247848, 15.17884557, 15.977481787, 16.746098769, 17.504475725, 18.254166354, 19.016819136, 19.783753977, 20.571954997, 21.382401421, 22.223156612, 23.089526058, 24], False, 3, [1, 1, 1, 1, 1, 1, 1, 1, 1, 1, 1, 1, 1, 1, 1, 1, 1, 1, 1, 1, 1, 1, 1, 1, 1, 1, 1], False), False)
sketch2.addGeometry(Part.BSplineCurve([App.Vector(-0.003205, 20.948718, 0), App.Vector(0.122891, 20.94819, 0), App.Vector(0.365604, 20.947175, 0), App.Vector(0.714048, 20.928541, 0), App.Vector(1.032294, 20.902592, 0), App.Vector(1.31963, 20.864636, 0), App.Vector(1.576756, 20.815798, 0), App.Vector(1.803653, 20.755605, 0), App.Vector(2.000773, 20.684646, 0), App.Vector(2.1679, 20.600484, 0), App.Vector(2.309986, 20.507309, 0), App.Vector(2.431716, 20.408273, 0), App.Vector(2.536515, 20.303206, 0), App.Vector(2.62146, 20.190975, 0), App.Vector(2.689163, 20.072331, 0), App.Vector(2.735302, 19.946631, 0), App.Vector(2.763684, 19.814296, 0), App.Vector(2.767357, 19.723969, 0), App.Vector(2.769231, 19.677885, 0)], [4, 1, 1, 1, 1, 1, 1, 1, 1, 1, 1, 1, 1, 1, 1, 1, 4], [0, 1.793903324, 3.452957663, 4.963427329, 6.336122014, 7.574844885, 8.684777121, 9.673127442, 10.55010789, 11.340650774, 12.086136756, 12.779466299, 13.446812155, 14.083183996, 14.715685896, 15.34475337, 16], False, 3, [1, 1, 1, 1, 1, 1, 1, 1, 1, 1, 1, 1, 1, 1, 1, 1, 1, 1, 1], False), False)
sketch2.addGeometry(Part.BSplineCurve([App.Vector(-2.219551, 20.554487, 0), App.Vector(-2.160376, 20.586852, 0), App.Vector(-2.036291, 20.654718, 0), App.Vector(-1.826861, 20.733053, 0), App.Vector(-1.590956, 20.799879, 0), App.Vector(-1.326668, 20.853448, 0), App.Vector(-1.035059, 20.895879, 0), App.Vector(-0.71591, 20.928317, 0), App.Vector(-0.368766, 20.944794, 0), App.Vector(-0.12822, 20.947376, 0), App.Vector(-0.003205, 20.948718, 0)], [4, 1, 1, 1, 1, 1, 1, 1, 4], [0, 0.710996797, 1.490902623, 2.352723643, 3.296875318, 4.334065587, 5.461510359, 6.680713396, 8], False, 3, [1, 1, 1, 1, 1, 1, 1, 1, 1, 1, 1], False), False)
sketch2.addGeometry(Part.BSplineCurve([App.Vector(-2.769231, 19.677885, 0), App.Vector(-2.7679, 19.722889, 0), App.Vector(-2.765295, 19.811001, 0), App.Vector(-2.738557, 19.939488, 0), App.Vector(-2.695085, 20.060995, 0), App.Vector(-2.633592, 20.175154, 0), App.Vector(-2.555393, 20.282375, 0), App.Vector(-2.460147, 20.382132, 0), App.Vector(-2.346902, 20.473673, 0), App.Vector(-2.262858, 20.527006, 0), App.Vector(-2.219551, 20.554487, 0)], [4, 1, 1, 1, 1, 1, 1, 1, 4], [0, 0.992283464, 1.942767638, 2.88273346, 3.832339453, 4.79467288, 5.803907806, 6.868395428, 8], False, 3, [1, 1, 1, 1, 1, 1, 1, 1, 1, 1, 1], False), False)
sketch2.addGeometry(Part.BSplineCurve([App.Vector(-0.094551, 18.384615, 0), App.Vector(-0.216357, 18.386077, 0), App.Vector(-0.449929, 18.388881, 0), App.Vector(-0.785801, 18.403622, 0), App.Vector(-1.091515, 18.432999, 0), App.Vector(-1.368955, 18.470014, 0), App.Vector(-1.617069, 18.520439, 0), App.Vector(-1.835933, 18.583224, 0), App.Vector(-2.027169, 18.65285, 0), App.Vector(-2.187963, 18.740147, 0), App.Vector(-2.325475, 18.833678, 0), App.Vector(-2.44443, 18.933508, 0), App.Vector(-2.54352, 19.041378, 0), App.Vector(-2.627646, 19.154063, 0), App.Vector(-2.690115, 19.275742, 0), App.Vector(-2.735657, 19.403921, 0), App.Vector(-2.763424, 19.538884, 0), App.Vector(-2.767284, 19.631283, 0), App.Vector(-2.769231, 19.677885, 0)], [4, 1, 1, 1, 1, 1, 1, 1, 1, 1, 1, 1, 1, 1, 1, 1, 4], [0, 1.772047989, 3.398033405, 4.888860297, 6.238411839, 7.468309579, 8.567754056, 9.549141588, 10.421774021, 11.221426488, 11.965694757, 12.675067502, 13.348095901, 14.005005053, 14.656328889, 15.322321954, 16], False, 3, [1, 1, 1, 1, 1, 1, 1, 1, 1, 1, 1, 1, 1, 1, 1, 1, 1, 1, 1], False), False)
sketch2.addGeometry(Part.BSplineCurve([App.Vector(2.769231, 19.677885, 0), App.Vector(2.76623, 19.615065, 0), App.Vector(2.760346, 19.491904, 0), App.Vector(2.711241, 19.313464, 0), App.Vector(2.633746, 19.145956, 0), App.Vector(2.542401, 19.01773, 0), App.Vector(2.453283, 18.922187, 0), App.Vector(2.37511, 18.852941, 0), App.Vector(2.283681, 18.790924, 0), App.Vector(2.182947, 18.731086, 0), App.Vector(2.070137, 18.677846, 0), App.Vector(1.948094, 18.624907, 0), App.Vector(1.812746, 18.581777, 0), App.Vector(1.666643, 18.539301, 0), App.Vector(1.505667, 18.502166, 0), App.Vector(1.32855, 18.470819, 0), App.Vector(1.133961, 18.443788, 0), App.Vector(0.922372, 18.420964, 0), App.Vector(0.692941, 18.406453, 0), App.Vector(0.446201, 18.392409, 0), App.Vector(0.181642, 18.387297, 0), App.Vector(-0.000535, 18.385528, 0), App.Vector(-0.094551, 18.384615, 0)], [4, 1, 1, 1, 1, 1, 1, 1, 1, 1, 1, 1, 1, 1, 1, 1, 1, 1, 1, 1, 4], [0, 1.076821401, 2.111141558, 3.153197101, 4.23200803, 4.796476379, 5.394298193, 6.020090776, 6.690078086, 7.403703365, 8.159894791, 8.971856079, 9.83973388, 10.771758647, 11.806038152, 12.926526118, 14.143777411, 15.458313878, 16.872423957, 18.385946227, 20], False, 3, [1, 1, 1, 1, 1, 1, 1, 1, 1, 1, 1, 1, 1, 1, 1, 1, 1, 1, 1, 1, 1, 1, 1], False), False)
sketch2.addConstraint(Sketcher.Constraint("Block", 0))
sketch2.addConstraint(Sketcher.Constraint("Block", 1))
sketch2.addConstraint(Sketcher.Constraint("Block", 2))
sketch2.addConstraint(Sketcher.Constraint("Block", 3))
sketch2.addConstraint(Sketcher.Constraint("Block", 4))
sketch2.addConstraint(Sketcher.Constraint("Block", 5))
sketch2.addConstraint(Sketcher.Constraint("Block", 6))
sketch2.addConstraint(Sketcher.Constraint("Block", 7))
sketch2.addConstraint(Sketcher.Constraint("Block", 8))
sketch2.addConstraint(Sketcher.Constraint("Block", 9))
sketch2.addConstraint(Sketcher.Constraint("Block", 10))
sketch2.addConstraint(Sketcher.Constraint("Block", 11))
sketch2.addConstraint(Sketcher.Constraint("Block", 12))
sketch2.addConstraint(Sketcher.Constraint("Block", 13))
sketch2.addConstraint(Sketcher.Constraint("Block", 14))
sketch2.addConstraint(Sketcher.Constraint("Block", 15))
sketch2.addConstraint(Sketcher.Constraint("Block", 16))
sketch2.addConstraint(Sketcher.Constraint("Block", 17))
sketch2.addConstraint(Sketcher.Constraint("Block", 18))
sketch2.addConstraint(Sketcher.Constraint("Block", 19))
sketch2.addConstraint(Sketcher.Constraint("Block", 20))
sketch2.addConstraint(Sketcher.Constraint("Block", 21))
sketch2.addConstraint(Sketcher.Constraint("Block", 22))
sketch2.addConstraint(Sketcher.Constraint("Block", 23))
pocket1 = doc.addObject("PartDesign::Pocket", "Pocket")
body.addObject(pocket1)
pocket1.Profile = sketch2
pocket1.Length = 0.2
pocket1.Reversed = True

doc.recompute()
